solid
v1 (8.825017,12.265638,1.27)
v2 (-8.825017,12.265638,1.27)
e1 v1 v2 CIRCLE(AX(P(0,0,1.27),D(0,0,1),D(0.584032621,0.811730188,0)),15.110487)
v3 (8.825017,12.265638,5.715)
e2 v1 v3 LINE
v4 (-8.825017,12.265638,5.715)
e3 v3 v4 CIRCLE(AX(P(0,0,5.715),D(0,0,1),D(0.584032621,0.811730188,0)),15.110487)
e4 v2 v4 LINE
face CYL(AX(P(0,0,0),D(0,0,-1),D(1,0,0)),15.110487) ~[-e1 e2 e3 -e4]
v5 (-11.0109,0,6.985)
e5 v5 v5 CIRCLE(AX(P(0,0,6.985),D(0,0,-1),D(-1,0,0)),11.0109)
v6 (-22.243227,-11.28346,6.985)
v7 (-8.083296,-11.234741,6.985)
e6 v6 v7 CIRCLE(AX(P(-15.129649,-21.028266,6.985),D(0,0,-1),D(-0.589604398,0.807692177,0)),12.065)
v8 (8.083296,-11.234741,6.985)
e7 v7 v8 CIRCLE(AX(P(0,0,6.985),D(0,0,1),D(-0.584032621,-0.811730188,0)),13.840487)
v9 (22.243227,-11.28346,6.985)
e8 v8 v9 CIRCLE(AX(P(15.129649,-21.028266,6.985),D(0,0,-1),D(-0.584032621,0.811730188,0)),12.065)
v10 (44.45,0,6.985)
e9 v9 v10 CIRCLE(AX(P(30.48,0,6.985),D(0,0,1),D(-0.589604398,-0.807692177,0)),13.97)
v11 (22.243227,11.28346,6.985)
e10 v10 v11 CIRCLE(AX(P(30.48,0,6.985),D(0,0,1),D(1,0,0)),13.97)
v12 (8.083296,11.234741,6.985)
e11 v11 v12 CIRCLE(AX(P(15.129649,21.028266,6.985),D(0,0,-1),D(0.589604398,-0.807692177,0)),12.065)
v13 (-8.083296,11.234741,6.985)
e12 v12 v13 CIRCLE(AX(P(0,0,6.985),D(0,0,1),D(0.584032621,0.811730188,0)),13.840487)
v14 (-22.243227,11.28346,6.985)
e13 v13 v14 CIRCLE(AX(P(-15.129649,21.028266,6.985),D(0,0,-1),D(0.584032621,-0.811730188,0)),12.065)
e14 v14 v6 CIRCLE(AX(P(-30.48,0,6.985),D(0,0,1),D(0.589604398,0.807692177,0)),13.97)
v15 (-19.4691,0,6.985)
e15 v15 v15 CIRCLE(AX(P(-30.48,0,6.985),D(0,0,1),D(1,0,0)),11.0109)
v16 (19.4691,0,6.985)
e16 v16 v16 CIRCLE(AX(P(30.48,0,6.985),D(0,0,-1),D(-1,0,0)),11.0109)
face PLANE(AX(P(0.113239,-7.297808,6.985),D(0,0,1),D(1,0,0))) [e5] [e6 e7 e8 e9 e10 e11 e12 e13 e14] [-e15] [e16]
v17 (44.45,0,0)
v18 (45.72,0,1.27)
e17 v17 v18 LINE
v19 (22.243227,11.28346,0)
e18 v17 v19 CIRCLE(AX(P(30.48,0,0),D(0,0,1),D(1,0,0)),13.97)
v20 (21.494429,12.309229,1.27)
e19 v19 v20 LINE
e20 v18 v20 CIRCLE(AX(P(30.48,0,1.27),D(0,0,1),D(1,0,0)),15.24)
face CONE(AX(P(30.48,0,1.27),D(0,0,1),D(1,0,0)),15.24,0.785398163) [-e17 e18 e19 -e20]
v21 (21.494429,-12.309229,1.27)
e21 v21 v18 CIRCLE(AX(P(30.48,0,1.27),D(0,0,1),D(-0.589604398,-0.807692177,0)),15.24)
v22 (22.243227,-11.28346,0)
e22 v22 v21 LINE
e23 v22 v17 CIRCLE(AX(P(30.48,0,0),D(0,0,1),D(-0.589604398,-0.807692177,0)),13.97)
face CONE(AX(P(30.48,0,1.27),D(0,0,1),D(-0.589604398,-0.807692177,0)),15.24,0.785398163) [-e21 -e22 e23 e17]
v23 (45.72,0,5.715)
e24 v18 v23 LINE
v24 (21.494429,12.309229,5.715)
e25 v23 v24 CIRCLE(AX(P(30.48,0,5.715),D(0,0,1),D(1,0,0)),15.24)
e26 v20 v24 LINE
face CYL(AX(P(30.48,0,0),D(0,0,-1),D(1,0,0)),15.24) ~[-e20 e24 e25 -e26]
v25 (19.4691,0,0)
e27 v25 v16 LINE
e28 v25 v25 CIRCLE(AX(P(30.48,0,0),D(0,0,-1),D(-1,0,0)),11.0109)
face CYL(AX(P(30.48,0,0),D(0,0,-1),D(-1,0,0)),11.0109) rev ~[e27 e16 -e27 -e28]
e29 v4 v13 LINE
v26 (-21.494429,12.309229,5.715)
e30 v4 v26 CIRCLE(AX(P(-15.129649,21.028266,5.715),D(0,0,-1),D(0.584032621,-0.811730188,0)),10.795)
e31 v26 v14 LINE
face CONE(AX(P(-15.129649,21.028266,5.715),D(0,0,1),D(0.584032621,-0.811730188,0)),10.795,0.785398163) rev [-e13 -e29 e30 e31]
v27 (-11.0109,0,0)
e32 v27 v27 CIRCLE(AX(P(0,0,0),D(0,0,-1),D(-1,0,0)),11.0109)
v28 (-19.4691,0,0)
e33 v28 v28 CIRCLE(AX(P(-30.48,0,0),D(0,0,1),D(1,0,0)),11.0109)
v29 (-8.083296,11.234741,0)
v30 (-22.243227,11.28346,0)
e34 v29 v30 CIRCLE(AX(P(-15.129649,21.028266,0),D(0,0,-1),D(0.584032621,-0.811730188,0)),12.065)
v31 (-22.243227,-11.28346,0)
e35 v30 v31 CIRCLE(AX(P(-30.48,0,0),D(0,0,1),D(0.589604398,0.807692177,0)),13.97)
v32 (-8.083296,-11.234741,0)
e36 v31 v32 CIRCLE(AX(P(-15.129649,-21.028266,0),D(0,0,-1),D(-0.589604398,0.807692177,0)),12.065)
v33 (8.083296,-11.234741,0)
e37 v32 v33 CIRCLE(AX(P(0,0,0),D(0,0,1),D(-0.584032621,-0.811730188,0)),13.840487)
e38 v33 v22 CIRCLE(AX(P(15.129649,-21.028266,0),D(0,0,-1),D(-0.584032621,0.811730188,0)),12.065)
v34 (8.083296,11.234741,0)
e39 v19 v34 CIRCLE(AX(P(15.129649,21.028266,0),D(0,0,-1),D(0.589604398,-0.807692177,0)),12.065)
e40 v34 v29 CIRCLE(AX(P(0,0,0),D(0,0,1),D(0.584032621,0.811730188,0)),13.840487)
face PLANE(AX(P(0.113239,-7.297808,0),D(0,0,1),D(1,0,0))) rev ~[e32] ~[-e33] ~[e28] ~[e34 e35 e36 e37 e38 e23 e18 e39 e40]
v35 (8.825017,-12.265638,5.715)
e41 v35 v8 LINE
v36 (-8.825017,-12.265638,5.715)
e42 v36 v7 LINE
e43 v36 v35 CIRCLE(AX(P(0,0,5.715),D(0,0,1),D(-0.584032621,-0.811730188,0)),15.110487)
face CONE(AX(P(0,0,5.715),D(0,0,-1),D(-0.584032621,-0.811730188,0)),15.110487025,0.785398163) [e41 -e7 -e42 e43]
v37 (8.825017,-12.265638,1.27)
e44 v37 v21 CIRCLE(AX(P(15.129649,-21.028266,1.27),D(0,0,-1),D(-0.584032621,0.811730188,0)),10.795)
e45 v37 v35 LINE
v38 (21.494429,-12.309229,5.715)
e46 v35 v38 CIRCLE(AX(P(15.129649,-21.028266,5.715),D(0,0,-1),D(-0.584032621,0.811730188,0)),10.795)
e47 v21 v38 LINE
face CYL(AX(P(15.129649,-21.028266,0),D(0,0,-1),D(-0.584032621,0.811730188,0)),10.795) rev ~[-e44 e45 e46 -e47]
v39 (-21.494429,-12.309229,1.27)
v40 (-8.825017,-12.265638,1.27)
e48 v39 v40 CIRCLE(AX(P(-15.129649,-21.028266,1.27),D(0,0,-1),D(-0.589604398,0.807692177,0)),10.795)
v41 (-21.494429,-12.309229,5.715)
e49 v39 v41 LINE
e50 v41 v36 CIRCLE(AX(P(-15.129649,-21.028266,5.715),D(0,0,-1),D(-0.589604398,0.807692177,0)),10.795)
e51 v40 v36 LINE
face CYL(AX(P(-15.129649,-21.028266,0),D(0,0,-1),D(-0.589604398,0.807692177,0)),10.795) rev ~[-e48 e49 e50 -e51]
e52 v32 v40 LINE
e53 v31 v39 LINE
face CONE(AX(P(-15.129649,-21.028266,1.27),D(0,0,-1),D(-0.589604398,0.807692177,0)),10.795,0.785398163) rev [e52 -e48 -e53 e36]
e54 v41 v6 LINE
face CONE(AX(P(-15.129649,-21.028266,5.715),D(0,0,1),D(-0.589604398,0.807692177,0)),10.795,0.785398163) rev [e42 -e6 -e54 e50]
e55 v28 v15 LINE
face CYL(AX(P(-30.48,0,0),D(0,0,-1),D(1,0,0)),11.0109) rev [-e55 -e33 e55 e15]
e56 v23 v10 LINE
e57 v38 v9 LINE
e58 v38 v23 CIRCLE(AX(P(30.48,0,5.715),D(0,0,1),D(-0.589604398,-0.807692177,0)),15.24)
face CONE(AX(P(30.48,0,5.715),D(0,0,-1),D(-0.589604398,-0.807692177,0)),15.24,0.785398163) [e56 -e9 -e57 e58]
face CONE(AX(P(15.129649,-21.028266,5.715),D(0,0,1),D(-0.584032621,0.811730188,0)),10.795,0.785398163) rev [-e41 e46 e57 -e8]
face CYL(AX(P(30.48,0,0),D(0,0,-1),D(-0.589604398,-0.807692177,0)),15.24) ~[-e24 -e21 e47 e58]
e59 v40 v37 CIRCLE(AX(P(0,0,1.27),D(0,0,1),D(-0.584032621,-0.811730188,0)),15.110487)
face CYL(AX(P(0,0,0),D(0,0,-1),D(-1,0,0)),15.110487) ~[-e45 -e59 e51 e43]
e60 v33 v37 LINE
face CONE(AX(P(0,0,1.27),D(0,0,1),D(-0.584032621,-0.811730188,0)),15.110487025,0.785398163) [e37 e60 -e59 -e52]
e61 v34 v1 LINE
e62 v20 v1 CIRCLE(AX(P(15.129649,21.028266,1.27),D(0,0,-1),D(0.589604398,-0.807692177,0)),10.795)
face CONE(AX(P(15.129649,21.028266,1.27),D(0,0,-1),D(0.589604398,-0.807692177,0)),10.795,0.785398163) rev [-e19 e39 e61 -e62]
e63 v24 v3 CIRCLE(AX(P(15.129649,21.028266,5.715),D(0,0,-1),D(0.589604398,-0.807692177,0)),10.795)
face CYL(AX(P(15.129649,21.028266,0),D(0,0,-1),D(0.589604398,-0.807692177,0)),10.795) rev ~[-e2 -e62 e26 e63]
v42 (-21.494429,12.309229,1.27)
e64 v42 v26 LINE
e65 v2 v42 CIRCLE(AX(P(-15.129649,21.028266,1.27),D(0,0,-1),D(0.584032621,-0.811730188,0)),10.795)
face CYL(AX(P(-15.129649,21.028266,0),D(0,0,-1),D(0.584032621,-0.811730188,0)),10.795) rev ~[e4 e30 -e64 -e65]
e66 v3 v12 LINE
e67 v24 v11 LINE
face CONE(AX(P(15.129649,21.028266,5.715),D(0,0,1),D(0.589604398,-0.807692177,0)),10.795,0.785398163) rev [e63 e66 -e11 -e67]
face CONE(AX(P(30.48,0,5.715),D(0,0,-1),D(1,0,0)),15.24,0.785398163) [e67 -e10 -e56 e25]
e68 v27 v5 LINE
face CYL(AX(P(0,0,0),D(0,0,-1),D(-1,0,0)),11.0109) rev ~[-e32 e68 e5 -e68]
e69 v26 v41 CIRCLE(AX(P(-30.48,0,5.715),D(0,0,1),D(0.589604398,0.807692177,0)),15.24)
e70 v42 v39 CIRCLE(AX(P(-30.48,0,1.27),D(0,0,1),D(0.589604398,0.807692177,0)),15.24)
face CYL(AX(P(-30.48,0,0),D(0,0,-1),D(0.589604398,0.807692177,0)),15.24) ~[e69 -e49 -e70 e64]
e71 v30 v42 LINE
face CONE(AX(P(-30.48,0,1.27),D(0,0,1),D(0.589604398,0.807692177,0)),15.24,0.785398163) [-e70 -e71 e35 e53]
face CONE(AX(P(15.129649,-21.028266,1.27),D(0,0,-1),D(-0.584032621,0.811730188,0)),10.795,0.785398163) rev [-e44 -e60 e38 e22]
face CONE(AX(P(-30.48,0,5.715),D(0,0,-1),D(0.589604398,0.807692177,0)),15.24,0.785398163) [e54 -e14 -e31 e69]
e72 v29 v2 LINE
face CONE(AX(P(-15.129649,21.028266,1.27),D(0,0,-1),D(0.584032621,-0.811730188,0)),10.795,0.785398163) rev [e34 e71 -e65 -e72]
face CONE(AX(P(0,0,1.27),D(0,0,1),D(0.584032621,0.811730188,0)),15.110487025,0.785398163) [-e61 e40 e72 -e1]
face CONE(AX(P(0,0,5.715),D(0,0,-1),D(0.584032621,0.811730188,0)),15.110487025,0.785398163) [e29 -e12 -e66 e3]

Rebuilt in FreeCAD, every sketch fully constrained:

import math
import FreeCAD as App
import Part
import Sketcher

V = App.Vector
Q = App.Units.Quantity


def edges_at(feature, points):
    """Names of the edges that pass closest to the given points."""
    edges = feature.Shape.Edges
    near = lambda p: min(range(len(edges)), key=lambda i: edges[i].distToShape(Part.Vertex(*p))[0])
    return sorted({f"Edge{near(p) + 1}" for p in points})

doc = App.newDocument("Part")
body = doc.addObject("PartDesign::Body", "Body")

sketch1 = body.newObject("Sketcher::SketchObject", "Sketch")
sketch1.AttachmentSupport = (doc.getObject("XY_Plane"), [""])
sketch1.MapMode = "FlatFace"
sketch1.addGeometry([
    Part.ArcOfCircle(Part.Circle(V(0, 0, 0), V(0, 0, 1), 15), math.radians(-126), math.radians(-54)),
    Part.ArcOfCircle(Part.Circle(V(15, -21, 0), V(0, 0, 1), 11), math.radians(54), math.radians(126)),
    Part.ArcOfCircle(Part.Circle(V(30, 0, 0), V(0, 0, 1), 15), math.radians(-126), math.radians(0)),
    Part.ArcOfCircle(Part.Circle(V(30, 0, 0), V(0, 0, 1), 15), math.radians(0), math.radians(126)),
    Part.ArcOfCircle(Part.Circle(V(15, 21, 0), V(0, 0, 1), 11), math.radians(-126), math.radians(-54)),
    Part.ArcOfCircle(Part.Circle(V(0, 0, 0), V(0, 0, 1), 15), math.radians(54), math.radians(126)),
    Part.ArcOfCircle(Part.Circle(V(-15, 21, 0), V(0, 0, 1), 11), math.radians(-126), math.radians(-54)),
    Part.ArcOfCircle(Part.Circle(V(-30, 0, 0), V(0, 0, 1), 15), math.radians(54), math.radians(306)),
    Part.ArcOfCircle(Part.Circle(V(-15, -21, 0), V(0, 0, 1), 11), math.radians(54), math.radians(126)),
    Part.Circle(V(-30, 0, 0), V(0, 0, 1), 11),
    Part.Circle(V(0, 0, 0), V(0, 0, 1), 11),
    Part.Circle(V(30, 0, 0), V(0, 0, 1), 11),
], False)
sketch1.addConstraint([
    Sketcher.Constraint("Tangent", 0, 2, 1, 2),
    Sketcher.Constraint("Tangent", 1, 1, 2, 1),
    Sketcher.Constraint("Tangent", 2, 2, 3, 1),
    Sketcher.Constraint("Tangent", 3, 2, 4, 2),
    Sketcher.Constraint("Tangent", 4, 1, 5, 1),
    Sketcher.Constraint("Tangent", 5, 2, 6, 2),
    Sketcher.Constraint("Tangent", 6, 1, 7, 1),
    Sketcher.Constraint("Tangent", 7, 2, 8, 2),
    Sketcher.Constraint("Tangent", 8, 1, 0, 1),
    Sketcher.Constraint("Coincident", 0, 3, -1, 1),
    Sketcher.Constraint("Coincident", 5, 3, -1, 1),
    Sketcher.Constraint("Coincident", 10, 3, -1, 1),
    Sketcher.Constraint("Coincident", 9, 3, 7, 3),
    Sketcher.Constraint("Coincident", 11, 3, 2, 3),
    Sketcher.Constraint("Equal", 2, 3),
    Sketcher.Constraint("Equal", 1, 4),
    Sketcher.Constraint("Equal", 0, 5),
    Sketcher.Constraint("Equal", 4, 6),
    Sketcher.Constraint("Equal", 3, 7),
    Sketcher.Constraint("Equal", 6, 8),
    Sketcher.Constraint("Equal", 9, 10),
    Sketcher.Constraint("Equal", 10, 11),
    Sketcher.Constraint("Symmetric", 2, 3, 7, 3, -1, 1),
    Sketcher.Constraint("PointOnObject", 2, 3, -1),
    Sketcher.Constraint("PointOnObject", 2, 2, -1),
    Sketcher.Constraint("Radius", 2, Q("0.6 in")),
    Sketcher.Constraint("Diameter", 9, Q("0.867 in")),
    Sketcher.Constraint("Radius", 1, Q("0.425 in")),
    Sketcher.Constraint("DistanceX", -1, 1, 2, 3, Q("1.2 in")),
    Sketcher.Constraint("Radius", 0, Q("15.110487 mm")),
])
pad1 = body.newObject("PartDesign::Pad", "Pad")
pad1.Profile = sketch1
pad1.Length = Q("0.275 in")
doc.recompute()

chamfer = body.newObject("PartDesign::Chamfer", "Chamfer")
chamfer.Base = (pad1, edges_at(pad1, [(-45.72, 0, 6.985)]))
chamfer.Size = Q("0.05 in")
doc.recompute()

chamfer2 = body.newObject("PartDesign::Chamfer", "Chamfer001")
chamfer2.Base = (chamfer, edges_at(chamfer, [
    (-45.72, 0, 0),
    (37.384, -13.587, 0),
    (0, -15.11, 0),
    (15.167, -10.233, 0),
    (-15.167, -10.233, 0),
    (-15.167, 10.233, 0),
    (0, 15.11, 0),
    (15.167, 10.233, 0),
]))
chamfer2.Size = Q("0.05 in")

doc.recompute()
